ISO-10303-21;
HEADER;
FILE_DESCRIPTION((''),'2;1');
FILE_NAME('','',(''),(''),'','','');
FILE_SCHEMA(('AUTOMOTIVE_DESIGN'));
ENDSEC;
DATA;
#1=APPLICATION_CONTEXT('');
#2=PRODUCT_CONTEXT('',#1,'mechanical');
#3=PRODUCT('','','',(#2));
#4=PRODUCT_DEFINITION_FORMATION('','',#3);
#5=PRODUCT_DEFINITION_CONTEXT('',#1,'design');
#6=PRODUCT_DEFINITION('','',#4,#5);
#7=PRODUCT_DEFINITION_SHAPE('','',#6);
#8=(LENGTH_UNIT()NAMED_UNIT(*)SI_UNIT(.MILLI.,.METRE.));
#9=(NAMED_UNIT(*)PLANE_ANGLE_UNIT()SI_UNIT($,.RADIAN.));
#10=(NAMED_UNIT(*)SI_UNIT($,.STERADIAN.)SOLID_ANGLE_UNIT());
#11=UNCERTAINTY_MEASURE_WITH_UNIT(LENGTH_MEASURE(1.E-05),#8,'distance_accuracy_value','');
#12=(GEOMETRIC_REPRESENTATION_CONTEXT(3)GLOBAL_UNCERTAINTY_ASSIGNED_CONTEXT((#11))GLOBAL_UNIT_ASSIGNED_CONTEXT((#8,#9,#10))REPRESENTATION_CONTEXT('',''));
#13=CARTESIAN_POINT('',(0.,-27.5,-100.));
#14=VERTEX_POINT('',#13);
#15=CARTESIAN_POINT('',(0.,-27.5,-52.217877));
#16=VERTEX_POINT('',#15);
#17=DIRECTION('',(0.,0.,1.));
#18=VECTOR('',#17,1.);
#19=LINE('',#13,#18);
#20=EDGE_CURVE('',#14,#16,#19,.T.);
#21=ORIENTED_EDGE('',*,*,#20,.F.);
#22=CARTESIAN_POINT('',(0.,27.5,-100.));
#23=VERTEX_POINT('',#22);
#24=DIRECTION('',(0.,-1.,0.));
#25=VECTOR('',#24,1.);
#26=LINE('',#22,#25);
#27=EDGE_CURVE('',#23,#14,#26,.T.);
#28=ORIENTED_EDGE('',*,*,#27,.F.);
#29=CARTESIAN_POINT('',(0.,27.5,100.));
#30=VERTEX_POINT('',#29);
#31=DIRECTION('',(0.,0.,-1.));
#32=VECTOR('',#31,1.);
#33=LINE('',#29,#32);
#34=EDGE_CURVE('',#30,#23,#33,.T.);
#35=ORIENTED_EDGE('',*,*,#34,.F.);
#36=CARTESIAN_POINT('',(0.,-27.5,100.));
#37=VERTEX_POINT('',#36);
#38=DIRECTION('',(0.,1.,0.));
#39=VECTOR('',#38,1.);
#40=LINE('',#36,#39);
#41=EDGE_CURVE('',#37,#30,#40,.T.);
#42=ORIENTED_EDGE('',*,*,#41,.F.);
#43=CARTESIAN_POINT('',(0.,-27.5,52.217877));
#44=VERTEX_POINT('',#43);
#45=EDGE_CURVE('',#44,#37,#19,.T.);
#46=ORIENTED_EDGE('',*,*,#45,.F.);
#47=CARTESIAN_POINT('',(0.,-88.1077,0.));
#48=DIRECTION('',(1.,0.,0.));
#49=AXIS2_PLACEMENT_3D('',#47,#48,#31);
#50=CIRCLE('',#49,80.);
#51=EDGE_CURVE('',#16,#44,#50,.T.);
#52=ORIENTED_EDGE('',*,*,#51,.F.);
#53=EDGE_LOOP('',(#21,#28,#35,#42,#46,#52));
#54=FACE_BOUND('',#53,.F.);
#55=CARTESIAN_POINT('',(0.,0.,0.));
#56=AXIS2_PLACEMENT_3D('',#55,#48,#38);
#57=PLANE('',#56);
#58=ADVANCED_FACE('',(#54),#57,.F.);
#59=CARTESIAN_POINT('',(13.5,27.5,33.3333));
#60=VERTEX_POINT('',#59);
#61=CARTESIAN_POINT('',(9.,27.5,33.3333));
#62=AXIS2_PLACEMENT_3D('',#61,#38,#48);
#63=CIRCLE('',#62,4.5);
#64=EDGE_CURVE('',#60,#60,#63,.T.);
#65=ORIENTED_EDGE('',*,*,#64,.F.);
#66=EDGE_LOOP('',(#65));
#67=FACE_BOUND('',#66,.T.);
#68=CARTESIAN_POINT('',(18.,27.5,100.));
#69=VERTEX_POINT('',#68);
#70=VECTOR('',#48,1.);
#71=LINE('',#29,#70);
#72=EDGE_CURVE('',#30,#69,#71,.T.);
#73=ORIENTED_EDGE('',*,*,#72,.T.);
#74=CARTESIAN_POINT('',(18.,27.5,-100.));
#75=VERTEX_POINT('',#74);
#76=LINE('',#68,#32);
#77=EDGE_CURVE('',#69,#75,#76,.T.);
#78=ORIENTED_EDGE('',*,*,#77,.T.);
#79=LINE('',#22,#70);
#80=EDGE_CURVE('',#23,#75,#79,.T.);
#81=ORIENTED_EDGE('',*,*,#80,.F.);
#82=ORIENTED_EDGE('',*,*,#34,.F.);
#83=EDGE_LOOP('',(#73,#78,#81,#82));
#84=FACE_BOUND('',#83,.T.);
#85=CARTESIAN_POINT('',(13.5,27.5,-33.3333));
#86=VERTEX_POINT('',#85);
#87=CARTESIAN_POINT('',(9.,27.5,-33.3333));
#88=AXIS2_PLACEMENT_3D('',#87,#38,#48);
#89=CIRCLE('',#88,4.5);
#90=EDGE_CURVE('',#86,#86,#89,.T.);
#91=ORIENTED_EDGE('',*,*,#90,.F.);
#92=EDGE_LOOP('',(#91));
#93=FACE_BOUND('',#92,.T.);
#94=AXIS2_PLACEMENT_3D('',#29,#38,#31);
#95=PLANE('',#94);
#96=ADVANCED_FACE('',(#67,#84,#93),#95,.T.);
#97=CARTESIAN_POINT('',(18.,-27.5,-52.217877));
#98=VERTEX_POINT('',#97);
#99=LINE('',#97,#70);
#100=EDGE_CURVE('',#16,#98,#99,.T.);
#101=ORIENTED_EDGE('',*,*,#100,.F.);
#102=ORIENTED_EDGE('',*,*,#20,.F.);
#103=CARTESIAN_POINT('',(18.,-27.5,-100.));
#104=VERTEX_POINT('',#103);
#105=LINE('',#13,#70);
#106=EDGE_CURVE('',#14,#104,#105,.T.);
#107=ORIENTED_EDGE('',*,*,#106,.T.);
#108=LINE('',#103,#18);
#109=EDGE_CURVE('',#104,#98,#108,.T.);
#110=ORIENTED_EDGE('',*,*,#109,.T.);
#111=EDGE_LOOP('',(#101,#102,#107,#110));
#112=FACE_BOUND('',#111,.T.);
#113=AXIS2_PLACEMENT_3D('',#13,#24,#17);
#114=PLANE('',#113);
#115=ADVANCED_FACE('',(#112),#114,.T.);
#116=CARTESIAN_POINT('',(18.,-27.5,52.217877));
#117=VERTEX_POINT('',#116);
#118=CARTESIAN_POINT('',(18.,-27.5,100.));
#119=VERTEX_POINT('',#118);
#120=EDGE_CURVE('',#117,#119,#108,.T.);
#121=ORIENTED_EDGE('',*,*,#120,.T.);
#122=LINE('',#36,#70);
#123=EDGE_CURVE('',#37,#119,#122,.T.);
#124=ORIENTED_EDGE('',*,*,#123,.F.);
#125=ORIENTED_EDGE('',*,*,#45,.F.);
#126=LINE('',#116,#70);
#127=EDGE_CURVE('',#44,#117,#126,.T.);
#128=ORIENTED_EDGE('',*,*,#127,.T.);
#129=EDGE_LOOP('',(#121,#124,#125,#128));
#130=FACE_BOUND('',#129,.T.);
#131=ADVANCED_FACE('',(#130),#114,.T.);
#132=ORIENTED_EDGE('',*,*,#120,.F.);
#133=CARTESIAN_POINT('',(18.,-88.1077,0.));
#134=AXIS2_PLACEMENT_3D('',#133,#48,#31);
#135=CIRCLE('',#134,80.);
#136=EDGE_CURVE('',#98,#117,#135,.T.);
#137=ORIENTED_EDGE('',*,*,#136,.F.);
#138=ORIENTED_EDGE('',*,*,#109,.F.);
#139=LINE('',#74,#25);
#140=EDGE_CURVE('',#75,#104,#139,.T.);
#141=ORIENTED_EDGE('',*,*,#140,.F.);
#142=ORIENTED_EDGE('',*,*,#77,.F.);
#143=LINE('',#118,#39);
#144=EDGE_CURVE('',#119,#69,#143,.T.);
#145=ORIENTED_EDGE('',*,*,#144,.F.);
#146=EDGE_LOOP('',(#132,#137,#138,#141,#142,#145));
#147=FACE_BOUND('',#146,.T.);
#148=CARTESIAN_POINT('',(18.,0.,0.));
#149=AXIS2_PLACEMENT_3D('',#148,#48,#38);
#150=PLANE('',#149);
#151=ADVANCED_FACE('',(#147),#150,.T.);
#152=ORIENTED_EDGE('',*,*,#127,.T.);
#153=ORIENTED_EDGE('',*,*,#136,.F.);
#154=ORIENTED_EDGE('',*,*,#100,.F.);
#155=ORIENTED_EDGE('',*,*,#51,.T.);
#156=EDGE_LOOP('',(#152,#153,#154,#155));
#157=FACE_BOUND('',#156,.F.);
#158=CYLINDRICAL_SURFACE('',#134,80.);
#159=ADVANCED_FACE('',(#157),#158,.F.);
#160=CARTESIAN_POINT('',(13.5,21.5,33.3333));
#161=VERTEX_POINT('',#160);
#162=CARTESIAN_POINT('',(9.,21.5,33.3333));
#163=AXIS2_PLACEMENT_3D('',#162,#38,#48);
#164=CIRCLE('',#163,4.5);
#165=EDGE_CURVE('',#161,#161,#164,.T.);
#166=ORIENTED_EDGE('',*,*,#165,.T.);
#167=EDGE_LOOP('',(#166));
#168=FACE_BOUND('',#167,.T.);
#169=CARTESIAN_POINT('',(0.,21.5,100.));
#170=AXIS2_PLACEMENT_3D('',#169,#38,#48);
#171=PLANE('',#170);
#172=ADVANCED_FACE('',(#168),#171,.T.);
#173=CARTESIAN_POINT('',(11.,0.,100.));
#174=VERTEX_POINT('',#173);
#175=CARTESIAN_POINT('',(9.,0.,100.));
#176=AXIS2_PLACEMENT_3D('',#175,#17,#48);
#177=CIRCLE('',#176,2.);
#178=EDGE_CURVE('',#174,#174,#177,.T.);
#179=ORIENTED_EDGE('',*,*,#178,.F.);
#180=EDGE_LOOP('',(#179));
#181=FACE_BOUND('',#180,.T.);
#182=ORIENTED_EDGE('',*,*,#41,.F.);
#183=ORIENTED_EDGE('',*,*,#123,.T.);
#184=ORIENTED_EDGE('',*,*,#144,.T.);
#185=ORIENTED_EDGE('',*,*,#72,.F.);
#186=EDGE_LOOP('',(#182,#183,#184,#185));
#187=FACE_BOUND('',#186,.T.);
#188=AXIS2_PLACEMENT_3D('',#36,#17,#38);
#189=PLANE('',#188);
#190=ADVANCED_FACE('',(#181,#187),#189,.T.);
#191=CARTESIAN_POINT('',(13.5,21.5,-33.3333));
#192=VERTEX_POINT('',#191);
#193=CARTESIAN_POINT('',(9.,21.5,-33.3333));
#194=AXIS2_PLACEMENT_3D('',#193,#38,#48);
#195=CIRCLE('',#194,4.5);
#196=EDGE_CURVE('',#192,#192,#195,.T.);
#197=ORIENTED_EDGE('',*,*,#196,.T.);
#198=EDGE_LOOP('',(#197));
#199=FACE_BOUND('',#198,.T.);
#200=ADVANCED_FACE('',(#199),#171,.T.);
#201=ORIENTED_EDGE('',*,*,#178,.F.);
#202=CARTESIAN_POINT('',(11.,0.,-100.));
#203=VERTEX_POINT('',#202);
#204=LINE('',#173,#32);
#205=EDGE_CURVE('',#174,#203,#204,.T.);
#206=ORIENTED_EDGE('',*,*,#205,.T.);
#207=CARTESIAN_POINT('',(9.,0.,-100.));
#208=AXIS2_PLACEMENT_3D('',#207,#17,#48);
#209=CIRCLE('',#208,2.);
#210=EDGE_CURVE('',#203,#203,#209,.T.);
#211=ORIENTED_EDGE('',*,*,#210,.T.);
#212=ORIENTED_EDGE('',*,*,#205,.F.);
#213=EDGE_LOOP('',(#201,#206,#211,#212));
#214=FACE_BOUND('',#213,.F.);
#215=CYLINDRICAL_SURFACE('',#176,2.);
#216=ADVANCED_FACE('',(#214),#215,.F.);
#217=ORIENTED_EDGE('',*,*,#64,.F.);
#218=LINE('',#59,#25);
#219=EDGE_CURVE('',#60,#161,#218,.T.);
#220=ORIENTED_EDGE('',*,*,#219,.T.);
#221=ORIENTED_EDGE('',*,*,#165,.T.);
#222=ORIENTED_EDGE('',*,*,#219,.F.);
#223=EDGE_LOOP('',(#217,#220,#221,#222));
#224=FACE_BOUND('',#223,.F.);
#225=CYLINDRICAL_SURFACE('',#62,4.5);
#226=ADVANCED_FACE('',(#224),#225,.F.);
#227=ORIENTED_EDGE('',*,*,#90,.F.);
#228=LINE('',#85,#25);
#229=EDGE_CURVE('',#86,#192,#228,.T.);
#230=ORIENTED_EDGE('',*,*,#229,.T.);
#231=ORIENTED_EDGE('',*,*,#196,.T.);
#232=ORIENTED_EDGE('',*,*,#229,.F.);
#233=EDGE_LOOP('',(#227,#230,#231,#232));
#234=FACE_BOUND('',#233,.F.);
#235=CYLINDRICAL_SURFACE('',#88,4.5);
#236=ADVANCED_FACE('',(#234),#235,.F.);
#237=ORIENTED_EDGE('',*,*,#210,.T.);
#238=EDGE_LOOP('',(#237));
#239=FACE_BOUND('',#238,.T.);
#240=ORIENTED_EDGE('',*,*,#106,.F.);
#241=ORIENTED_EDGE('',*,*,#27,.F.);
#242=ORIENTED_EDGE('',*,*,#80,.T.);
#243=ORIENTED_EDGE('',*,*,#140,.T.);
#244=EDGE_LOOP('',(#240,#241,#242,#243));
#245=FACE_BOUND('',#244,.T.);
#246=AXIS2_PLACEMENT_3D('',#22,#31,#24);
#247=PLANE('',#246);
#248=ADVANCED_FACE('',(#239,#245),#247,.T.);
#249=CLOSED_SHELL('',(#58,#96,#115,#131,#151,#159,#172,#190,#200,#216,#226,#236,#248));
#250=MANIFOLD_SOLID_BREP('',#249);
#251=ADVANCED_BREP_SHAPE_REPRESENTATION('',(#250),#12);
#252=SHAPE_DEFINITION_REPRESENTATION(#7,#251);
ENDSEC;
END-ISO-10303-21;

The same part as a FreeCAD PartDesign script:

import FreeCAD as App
import Part
import Sketcher


def add_polygon(sketch, points):
    """Adds a closed chain of lines whose ends are joined by coincident constraints."""
    first, n = sketch.GeometryCount, len(points)
    for a, b in zip(points, points[1:] + points[:1]):
        sketch.addGeometry(Part.LineSegment(App.Vector(*a, 0), App.Vector(*b, 0)), False)
    for i in range(n):
        sketch.addConstraint(Sketcher.Constraint("Coincident", first + i, 2, first + (i + 1) % n, 1))

doc = App.newDocument("Part")
params = doc.addObject("Spreadsheet::Sheet", "Params")
for row, (alias, value) in enumerate([
    ("sketch1_width", "55 mm"),
    ("sketch1_height", "200 mm"),
    ("pad1_length", "18 mm"),
    ("sketch2_diameter", "9 mm"),
    ("pocket1_length", "6 mm"),
    ("sketch3_diameter", "160 mm"),
    ("pocket2_length", "18 mm"),
    ("sketch4_diameter", "4 mm"),
    ("pocket3_length", "290 mm"),
], start=1):
    params.set(f"A{row}", alias)
    params.set(f"B{row}", "=" + value)
    params.setAlias(f"B{row}", alias)

body = doc.addObject("PartDesign::Body", "Body")

# Sketch on YZ plane
sketch1 = body.newObject("Sketcher::SketchObject", "Sketch")
sketch1.AttachmentSupport = (doc.getObject("YZ_Plane"), [""])
sketch1.MapMode = "FlatFace"
add_polygon(sketch1, [(-28, -100), (28, -100), (28, 100), (-28, 100)])  # lines 0-3
sketch1.addConstraint([
    Sketcher.Constraint("Horizontal", 0),
    Sketcher.Constraint("Vertical", 1),
    Sketcher.Constraint("Horizontal", 2),
    Sketcher.Constraint("Vertical", 3),
    Sketcher.Constraint("Symmetric", 0, 2, 2, 2, -1, 1),
    Sketcher.Constraint("DistanceX", 0, 1, 0, 2, 55.0),
    Sketcher.Constraint("DistanceY", 1, 1, 1, 2, 200.0),
])
sketch1.setExpression("Constraints[9]", "Params.sketch1_width")
sketch1.setExpression("Constraints[10]", "Params.sketch1_height")
pad1 = body.newObject("PartDesign::Pad", "Pad")
pad1.Profile = sketch1
pad1.setExpression("Length", "Params.pad1_length")

# Sketch on XZ plane
sketch2 = body.newObject("Sketcher::SketchObject", "Sketch001")
sketch2.AttachmentSupport = (doc.getObject("XZ_Plane"), [""])
sketch2.MapMode = "FlatFace"
sketch2.AttachmentOffset = App.Placement(App.Vector(0, 0, -27.5), App.Rotation())
sketch2.addGeometry([
    Part.Circle(App.Vector(9, 33.3, 0), App.Vector(0, 0, 1), 4.5),
    Part.Circle(App.Vector(9, -33.3, 0), App.Vector(0, 0, 1), 4.5),
], False)
sketch2.addConstraint([
    Sketcher.Constraint("Equal", 0, 1),
    Sketcher.Constraint("Symmetric", 0, 3, 1, 3, -1),
    Sketcher.Constraint("Diameter", 0, 9.0),
    Sketcher.Constraint("DistanceX", -1, 1, 0, 3, 9.0),
    Sketcher.Constraint("DistanceY", 1, 3, 0, 3, 66.6666),
])
sketch2.setExpression("Constraints[2]", "Params.sketch2_diameter")
pocket1 = body.newObject("PartDesign::Pocket", "Pocket")
pocket1.Profile = sketch2
pocket1.setExpression("Length", "Params.pocket1_length")
pocket1.Reversed = True

# Sketch on YZ plane
sketch3 = body.newObject("Sketcher::SketchObject", "Sketch002")
sketch3.AttachmentSupport = (doc.getObject("YZ_Plane"), [""])
sketch3.MapMode = "FlatFace"
sketch3.AttachmentOffset = App.Placement(App.Vector(0, 0, 18), App.Rotation())
sketch3.addGeometry(Part.Circle(App.Vector(-88, 0, 0), App.Vector(0, 0, 1), 80), False)
sketch3.addConstraint([
    Sketcher.Constraint("PointOnObject", 0, 3, -1),
    Sketcher.Constraint("Diameter", 0, 160.0),
    Sketcher.Constraint("DistanceX", 0, 3, -1, 1, 88.1077),
])
sketch3.setExpression("Constraints[1]", "Params.sketch3_diameter")
pocket2 = body.newObject("PartDesign::Pocket", "Pocket001")
pocket2.Profile = sketch3
pocket2.setExpression("Length", "Params.pocket2_length")

# Sketch on XY plane
sketch4 = body.newObject("Sketcher::SketchObject", "Sketch003")
sketch4.AttachmentSupport = (doc.getObject("XY_Plane"), [""])
sketch4.MapMode = "FlatFace"
sketch4.AttachmentOffset = App.Placement(App.Vector(0, 0, 100), App.Rotation())
sketch4.addGeometry(Part.Circle(App.Vector(9, 0, 0), App.Vector(0, 0, 1), 2), False)
sketch4.addConstraint([
    Sketcher.Constraint("PointOnObject", 0, 3, -1),
    Sketcher.Constraint("Diameter", 0, 4.0),
    Sketcher.Constraint("DistanceX", -1, 1, 0, 3, 9.0),
])
sketch4.setExpression("Constraints[1]", "Params.sketch4_diameter")
pocket3 = body.newObject("PartDesign::Pocket", "Pocket002")
pocket3.Profile = sketch4
pocket3.setExpression("Length", "Params.pocket3_length")

doc.recompute()
